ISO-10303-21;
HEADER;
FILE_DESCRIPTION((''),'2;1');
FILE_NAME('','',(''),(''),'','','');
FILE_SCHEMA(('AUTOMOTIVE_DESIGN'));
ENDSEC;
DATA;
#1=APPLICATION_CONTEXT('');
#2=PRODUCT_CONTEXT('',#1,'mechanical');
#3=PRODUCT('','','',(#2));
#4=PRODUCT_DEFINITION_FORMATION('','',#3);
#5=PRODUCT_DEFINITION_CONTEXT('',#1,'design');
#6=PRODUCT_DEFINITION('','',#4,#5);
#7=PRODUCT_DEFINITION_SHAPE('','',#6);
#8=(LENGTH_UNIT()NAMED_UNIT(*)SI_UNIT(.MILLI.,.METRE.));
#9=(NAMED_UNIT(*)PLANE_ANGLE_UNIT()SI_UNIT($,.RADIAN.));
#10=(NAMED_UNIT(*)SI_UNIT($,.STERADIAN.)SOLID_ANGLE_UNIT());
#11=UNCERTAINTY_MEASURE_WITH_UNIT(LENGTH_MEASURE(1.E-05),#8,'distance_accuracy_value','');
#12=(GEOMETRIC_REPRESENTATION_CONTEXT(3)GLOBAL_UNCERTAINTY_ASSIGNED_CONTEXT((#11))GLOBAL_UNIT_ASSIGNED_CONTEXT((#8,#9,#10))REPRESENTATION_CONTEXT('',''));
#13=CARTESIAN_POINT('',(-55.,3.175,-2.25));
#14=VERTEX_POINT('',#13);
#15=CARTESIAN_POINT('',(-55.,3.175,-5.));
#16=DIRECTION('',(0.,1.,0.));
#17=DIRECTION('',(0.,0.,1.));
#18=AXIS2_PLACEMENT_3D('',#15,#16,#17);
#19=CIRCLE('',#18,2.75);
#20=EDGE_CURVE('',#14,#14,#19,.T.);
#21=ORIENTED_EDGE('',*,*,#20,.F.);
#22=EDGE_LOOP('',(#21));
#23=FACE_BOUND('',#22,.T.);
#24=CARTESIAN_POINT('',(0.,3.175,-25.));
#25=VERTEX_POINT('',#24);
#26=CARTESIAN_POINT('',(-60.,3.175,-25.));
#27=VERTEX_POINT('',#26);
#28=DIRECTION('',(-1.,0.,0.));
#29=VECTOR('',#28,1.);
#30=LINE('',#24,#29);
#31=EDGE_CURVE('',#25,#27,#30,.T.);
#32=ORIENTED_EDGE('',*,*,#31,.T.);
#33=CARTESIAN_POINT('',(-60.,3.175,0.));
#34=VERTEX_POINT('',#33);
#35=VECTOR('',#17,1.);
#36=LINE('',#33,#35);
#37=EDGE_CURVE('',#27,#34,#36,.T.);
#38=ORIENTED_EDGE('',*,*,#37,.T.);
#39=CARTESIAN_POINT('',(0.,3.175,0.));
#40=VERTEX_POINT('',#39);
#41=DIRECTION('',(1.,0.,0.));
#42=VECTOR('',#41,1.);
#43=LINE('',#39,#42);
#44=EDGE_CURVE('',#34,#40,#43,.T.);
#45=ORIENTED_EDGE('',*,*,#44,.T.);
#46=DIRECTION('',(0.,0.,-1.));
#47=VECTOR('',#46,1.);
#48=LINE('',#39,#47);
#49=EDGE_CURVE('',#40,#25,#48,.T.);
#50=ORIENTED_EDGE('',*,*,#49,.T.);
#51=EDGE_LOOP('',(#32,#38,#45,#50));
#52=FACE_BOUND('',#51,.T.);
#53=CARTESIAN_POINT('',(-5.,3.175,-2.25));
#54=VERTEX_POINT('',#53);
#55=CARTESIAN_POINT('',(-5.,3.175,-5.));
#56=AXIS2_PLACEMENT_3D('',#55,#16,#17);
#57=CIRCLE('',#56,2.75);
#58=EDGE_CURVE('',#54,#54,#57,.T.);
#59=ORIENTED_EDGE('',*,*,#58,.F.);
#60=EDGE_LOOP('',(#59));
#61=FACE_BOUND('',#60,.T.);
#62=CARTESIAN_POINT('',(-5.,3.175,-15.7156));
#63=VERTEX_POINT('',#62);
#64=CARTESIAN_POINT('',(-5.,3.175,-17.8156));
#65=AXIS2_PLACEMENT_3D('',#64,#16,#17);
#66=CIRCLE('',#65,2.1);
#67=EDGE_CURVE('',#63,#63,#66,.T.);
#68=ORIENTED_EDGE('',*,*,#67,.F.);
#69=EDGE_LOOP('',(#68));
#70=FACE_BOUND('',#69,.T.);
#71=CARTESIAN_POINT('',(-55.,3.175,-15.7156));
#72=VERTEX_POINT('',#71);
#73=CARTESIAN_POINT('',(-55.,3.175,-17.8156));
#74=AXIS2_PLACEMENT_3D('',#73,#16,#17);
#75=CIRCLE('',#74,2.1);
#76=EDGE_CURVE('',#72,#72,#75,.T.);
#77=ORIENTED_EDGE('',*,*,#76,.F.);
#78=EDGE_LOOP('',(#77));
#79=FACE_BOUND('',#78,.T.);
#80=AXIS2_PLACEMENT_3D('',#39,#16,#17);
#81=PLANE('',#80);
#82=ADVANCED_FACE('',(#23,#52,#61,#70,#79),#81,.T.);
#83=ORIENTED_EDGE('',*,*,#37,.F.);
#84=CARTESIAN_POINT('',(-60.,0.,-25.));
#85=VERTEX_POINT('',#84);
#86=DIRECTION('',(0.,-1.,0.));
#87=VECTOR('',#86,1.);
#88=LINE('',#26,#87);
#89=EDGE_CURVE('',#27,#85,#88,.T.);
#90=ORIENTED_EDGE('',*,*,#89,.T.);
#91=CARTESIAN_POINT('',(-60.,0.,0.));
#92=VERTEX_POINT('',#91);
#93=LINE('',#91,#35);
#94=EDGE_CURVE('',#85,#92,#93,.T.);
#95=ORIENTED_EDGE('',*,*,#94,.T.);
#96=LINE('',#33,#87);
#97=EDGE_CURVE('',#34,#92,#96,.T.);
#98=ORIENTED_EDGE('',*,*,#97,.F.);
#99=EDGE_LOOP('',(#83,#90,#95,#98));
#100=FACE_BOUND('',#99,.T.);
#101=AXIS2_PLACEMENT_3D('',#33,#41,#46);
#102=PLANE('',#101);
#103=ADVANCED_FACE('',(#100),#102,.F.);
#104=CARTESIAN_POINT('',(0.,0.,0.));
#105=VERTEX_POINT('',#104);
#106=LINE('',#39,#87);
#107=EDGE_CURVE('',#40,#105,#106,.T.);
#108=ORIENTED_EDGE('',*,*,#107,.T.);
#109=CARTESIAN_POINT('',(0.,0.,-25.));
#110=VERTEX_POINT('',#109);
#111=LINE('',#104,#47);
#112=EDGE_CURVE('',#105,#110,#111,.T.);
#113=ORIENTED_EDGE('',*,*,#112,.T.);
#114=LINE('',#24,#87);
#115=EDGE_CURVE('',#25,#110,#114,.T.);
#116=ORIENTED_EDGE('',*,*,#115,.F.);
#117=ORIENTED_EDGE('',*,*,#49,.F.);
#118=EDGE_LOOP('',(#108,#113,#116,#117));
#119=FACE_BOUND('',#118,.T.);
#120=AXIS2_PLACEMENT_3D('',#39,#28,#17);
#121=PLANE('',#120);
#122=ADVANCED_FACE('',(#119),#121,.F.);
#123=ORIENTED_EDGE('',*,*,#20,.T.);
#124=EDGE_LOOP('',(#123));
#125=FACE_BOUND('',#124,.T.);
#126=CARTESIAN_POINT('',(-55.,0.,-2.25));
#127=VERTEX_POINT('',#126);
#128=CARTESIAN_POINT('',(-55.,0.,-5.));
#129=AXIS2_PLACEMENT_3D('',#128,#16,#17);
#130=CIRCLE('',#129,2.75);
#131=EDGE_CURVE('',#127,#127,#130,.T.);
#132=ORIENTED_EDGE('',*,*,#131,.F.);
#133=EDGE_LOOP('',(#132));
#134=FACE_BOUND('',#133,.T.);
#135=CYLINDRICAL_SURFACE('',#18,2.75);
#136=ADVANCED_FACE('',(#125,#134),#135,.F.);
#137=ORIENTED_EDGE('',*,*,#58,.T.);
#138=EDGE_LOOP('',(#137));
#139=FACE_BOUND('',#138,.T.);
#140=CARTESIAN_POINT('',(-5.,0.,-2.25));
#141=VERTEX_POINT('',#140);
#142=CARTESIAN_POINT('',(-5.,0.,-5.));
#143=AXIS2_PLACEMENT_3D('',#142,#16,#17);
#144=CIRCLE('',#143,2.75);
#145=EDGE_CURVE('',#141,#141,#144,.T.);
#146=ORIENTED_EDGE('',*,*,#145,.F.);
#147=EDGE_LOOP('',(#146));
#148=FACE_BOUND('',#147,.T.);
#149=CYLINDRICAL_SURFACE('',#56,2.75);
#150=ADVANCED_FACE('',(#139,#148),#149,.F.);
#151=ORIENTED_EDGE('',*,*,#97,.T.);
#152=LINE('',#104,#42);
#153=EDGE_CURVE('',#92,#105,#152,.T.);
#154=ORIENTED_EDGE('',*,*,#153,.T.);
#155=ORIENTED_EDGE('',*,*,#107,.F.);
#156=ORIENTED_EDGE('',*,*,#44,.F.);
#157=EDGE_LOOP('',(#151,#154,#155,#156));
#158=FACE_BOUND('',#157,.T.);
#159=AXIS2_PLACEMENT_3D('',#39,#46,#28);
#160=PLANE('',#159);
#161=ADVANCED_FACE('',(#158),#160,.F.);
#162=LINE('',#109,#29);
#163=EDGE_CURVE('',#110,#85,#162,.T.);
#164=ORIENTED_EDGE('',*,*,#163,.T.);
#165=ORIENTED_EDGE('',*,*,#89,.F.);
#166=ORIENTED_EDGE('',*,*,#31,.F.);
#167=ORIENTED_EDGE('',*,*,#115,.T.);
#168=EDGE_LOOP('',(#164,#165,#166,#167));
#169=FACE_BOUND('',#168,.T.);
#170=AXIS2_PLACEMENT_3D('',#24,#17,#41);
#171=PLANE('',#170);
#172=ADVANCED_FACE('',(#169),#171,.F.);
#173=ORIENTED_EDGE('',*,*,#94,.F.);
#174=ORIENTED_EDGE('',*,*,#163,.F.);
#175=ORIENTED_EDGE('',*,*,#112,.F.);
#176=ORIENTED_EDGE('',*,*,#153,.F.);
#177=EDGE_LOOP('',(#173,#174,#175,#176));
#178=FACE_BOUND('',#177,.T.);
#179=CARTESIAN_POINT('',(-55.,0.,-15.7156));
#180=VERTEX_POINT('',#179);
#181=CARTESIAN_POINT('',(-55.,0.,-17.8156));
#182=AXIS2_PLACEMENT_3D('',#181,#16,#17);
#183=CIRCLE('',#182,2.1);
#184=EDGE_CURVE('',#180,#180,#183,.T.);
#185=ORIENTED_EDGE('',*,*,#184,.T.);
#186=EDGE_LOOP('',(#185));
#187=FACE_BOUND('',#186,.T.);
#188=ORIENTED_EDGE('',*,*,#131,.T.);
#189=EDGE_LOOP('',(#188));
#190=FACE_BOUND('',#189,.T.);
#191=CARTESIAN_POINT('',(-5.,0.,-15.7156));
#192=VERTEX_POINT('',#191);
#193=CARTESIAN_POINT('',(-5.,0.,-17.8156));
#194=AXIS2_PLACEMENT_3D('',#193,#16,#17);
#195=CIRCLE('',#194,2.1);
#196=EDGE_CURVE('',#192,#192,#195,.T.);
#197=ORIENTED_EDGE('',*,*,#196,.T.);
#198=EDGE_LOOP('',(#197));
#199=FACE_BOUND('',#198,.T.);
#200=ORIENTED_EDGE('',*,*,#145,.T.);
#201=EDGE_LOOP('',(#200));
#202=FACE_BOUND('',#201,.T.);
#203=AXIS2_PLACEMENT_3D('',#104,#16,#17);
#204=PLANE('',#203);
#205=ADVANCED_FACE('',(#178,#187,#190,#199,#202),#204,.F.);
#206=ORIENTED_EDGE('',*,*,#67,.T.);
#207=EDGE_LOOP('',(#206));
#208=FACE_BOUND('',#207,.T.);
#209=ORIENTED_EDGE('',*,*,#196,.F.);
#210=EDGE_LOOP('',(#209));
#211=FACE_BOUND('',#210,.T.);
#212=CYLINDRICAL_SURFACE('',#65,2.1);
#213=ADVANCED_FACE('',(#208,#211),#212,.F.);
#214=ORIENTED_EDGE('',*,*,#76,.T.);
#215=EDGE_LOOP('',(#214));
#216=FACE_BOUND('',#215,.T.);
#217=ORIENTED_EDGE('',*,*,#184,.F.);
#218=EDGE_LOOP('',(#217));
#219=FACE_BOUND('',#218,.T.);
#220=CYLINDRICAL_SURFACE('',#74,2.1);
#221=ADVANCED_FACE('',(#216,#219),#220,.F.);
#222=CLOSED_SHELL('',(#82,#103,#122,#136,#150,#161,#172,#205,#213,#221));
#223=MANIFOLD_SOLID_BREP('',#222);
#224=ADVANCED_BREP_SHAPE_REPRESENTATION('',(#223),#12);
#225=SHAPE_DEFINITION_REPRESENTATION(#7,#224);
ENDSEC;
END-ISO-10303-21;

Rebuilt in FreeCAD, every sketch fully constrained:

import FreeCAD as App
import Part
import Sketcher

V = App.Vector

doc = App.newDocument("Part")
params = doc.addObject("Spreadsheet::Sheet", "Params")
for row, (alias, value) in enumerate([
    ("sketch1_width", "60 mm"),
    ("sketch1_height", "25 mm"),
    ("pad1_length", "3.175 mm"),
    ("sketch2_diameter", "5.5 mm"),
    ("hole_diameter", "5.5 mm"),
    ("hole_depth", "15 mm"),
    ("sketch3_diameter", "4.2 mm"),
    ("hole2_diameter", "4.2 mm"),
    ("hole2_depth", "15 mm"),
], start=1):
    params.set(f"A{row}", alias)
    params.set(f"B{row}", "=" + value)
    params.setAlias(f"B{row}", alias)

body = doc.addObject("PartDesign::Body", "Body")

# Sketch on XZ plane
sketch1 = doc.addObject("Sketcher::SketchObject", "Sketch")
body.addObject(sketch1)
sketch1.AttachmentSupport = (doc.XZ_Plane, [""])
sketch1.MapMode = "FlatFace"
sketch1.addGeometry([
    Part.LineSegment(V(-60, -25, 0), V(-60, 0, 0)),
    Part.LineSegment(V(-60, 0, 0), V(0, 0, 0)),
    Part.LineSegment(V(0, 0, 0), V(0, -25, 0)),
    Part.LineSegment(V(0, -25, 0), V(-60, -25, 0)),
], False)
sketch1.addConstraint([
    Sketcher.Constraint("Coincident", 0, 2, 1, 1),
    Sketcher.Constraint("Coincident", 1, 2, 2, 1),
    Sketcher.Constraint("Coincident", 2, 2, 3, 1),
    Sketcher.Constraint("Coincident", 3, 2, 0, 1),
    Sketcher.Constraint("Vertical", 0),
    Sketcher.Constraint("Horizontal", 1),
    Sketcher.Constraint("Vertical", 2),
    Sketcher.Constraint("Horizontal", 3),
    Sketcher.Constraint("Coincident", 1, 2, -1, 1),
    Sketcher.Constraint("DistanceX", 1, 1, 1, 2, 60.0),
    Sketcher.Constraint("DistanceY", 0, 1, 0, 2, 25.0),
])
sketch1.setExpression("Constraints[9]", "Params.sketch1_width")
sketch1.setExpression("Constraints[10]", "Params.sketch1_height")
pad1 = doc.addObject("PartDesign::Pad", "Pad")
body.addObject(pad1)
pad1.Profile = sketch1
pad1.setExpression("Length", "Params.pad1_length")
pad1.Reversed = True

# Sketch on XZ plane
sketch2 = doc.addObject("Sketcher::SketchObject", "Sketch001")
body.addObject(sketch2)
sketch2.AttachmentSupport = (doc.XZ_Plane, [""])
sketch2.MapMode = "FlatFace"
sketch2.AttachmentOffset = App.Placement(V(0, 0, -3.175), App.Rotation())
sketch2.addGeometry([
    Part.Circle(V(-55, -5, 0), V(0, 0, 1), 2.75),
    Part.Circle(V(-5, -5, 0), V(0, 0, 1), 2.75),
], False)
sketch2.addConstraint([
    Sketcher.Constraint("Equal", 0, 1),
    Sketcher.Constraint("Horizontal", 0, 3, 1, 3),
    Sketcher.Constraint("Diameter", 0, 5.5),
    Sketcher.Constraint("DistanceX", 0, 3, -1, 1, 55.0),
    Sketcher.Constraint("DistanceY", 0, 3, -1, 1, 5.0),
    Sketcher.Constraint("DistanceX", 1, 3, -1, 1, 5.0),
])
sketch2.setExpression("Constraints[2]", "Params.sketch2_diameter")
doc.recompute()
hole = doc.addObject("PartDesign::Hole", "Hole")
body.addObject(hole)
hole.Profile = sketch2
hole.ThreadType = "None"
hole.setExpression("Diameter", "Params.hole_diameter")
hole.DepthType = "Dimension"
hole.setExpression("Depth", "Params.hole_depth")
hole.DrillPoint = "Angled"
hole.DrillPointAngle = 118
hole.Reversed = True

# Sketch on XZ plane
sketch3 = doc.addObject("Sketcher::SketchObject", "Sketch002")
body.addObject(sketch3)
sketch3.AttachmentSupport = (doc.XZ_Plane, [""])
sketch3.MapMode = "FlatFace"
sketch3.AttachmentOffset = App.Placement(V(0, 0, -3.175), App.Rotation())
sketch3.addGeometry([
    Part.Circle(V(-55, -17.8156, 0), V(0, 0, 1), 2.1),
    Part.Circle(V(-5, -17.8156, 0), V(0, 0, 1), 2.1),
], False)
sketch3.addConstraint([
    Sketcher.Constraint("Equal", 0, 1),
    Sketcher.Constraint("Horizontal", 0, 3, 1, 3),
    Sketcher.Constraint("Diameter", 0, 4.2),
    Sketcher.Constraint("DistanceX", 0, 3, -1, 1, 55.0),
    Sketcher.Constraint("DistanceX", 1, 3, -1, 1, 5.0),
    Sketcher.Constraint("DistanceY", 0, 3, -1, 1, 17.8156),
])
sketch3.setExpression("Constraints[2]", "Params.sketch3_diameter")
doc.recompute()
hole2 = doc.addObject("PartDesign::Hole", "Hole001")
body.addObject(hole2)
hole2.Profile = sketch3
hole2.ThreadType = "None"
hole2.setExpression("Diameter", "Params.hole2_diameter")
hole2.DepthType = "Dimension"
hole2.setExpression("Depth", "Params.hole2_depth")
hole2.DrillPoint = "Angled"
hole2.DrillPointAngle = 118
hole2.Reversed = True

doc.recompute()
